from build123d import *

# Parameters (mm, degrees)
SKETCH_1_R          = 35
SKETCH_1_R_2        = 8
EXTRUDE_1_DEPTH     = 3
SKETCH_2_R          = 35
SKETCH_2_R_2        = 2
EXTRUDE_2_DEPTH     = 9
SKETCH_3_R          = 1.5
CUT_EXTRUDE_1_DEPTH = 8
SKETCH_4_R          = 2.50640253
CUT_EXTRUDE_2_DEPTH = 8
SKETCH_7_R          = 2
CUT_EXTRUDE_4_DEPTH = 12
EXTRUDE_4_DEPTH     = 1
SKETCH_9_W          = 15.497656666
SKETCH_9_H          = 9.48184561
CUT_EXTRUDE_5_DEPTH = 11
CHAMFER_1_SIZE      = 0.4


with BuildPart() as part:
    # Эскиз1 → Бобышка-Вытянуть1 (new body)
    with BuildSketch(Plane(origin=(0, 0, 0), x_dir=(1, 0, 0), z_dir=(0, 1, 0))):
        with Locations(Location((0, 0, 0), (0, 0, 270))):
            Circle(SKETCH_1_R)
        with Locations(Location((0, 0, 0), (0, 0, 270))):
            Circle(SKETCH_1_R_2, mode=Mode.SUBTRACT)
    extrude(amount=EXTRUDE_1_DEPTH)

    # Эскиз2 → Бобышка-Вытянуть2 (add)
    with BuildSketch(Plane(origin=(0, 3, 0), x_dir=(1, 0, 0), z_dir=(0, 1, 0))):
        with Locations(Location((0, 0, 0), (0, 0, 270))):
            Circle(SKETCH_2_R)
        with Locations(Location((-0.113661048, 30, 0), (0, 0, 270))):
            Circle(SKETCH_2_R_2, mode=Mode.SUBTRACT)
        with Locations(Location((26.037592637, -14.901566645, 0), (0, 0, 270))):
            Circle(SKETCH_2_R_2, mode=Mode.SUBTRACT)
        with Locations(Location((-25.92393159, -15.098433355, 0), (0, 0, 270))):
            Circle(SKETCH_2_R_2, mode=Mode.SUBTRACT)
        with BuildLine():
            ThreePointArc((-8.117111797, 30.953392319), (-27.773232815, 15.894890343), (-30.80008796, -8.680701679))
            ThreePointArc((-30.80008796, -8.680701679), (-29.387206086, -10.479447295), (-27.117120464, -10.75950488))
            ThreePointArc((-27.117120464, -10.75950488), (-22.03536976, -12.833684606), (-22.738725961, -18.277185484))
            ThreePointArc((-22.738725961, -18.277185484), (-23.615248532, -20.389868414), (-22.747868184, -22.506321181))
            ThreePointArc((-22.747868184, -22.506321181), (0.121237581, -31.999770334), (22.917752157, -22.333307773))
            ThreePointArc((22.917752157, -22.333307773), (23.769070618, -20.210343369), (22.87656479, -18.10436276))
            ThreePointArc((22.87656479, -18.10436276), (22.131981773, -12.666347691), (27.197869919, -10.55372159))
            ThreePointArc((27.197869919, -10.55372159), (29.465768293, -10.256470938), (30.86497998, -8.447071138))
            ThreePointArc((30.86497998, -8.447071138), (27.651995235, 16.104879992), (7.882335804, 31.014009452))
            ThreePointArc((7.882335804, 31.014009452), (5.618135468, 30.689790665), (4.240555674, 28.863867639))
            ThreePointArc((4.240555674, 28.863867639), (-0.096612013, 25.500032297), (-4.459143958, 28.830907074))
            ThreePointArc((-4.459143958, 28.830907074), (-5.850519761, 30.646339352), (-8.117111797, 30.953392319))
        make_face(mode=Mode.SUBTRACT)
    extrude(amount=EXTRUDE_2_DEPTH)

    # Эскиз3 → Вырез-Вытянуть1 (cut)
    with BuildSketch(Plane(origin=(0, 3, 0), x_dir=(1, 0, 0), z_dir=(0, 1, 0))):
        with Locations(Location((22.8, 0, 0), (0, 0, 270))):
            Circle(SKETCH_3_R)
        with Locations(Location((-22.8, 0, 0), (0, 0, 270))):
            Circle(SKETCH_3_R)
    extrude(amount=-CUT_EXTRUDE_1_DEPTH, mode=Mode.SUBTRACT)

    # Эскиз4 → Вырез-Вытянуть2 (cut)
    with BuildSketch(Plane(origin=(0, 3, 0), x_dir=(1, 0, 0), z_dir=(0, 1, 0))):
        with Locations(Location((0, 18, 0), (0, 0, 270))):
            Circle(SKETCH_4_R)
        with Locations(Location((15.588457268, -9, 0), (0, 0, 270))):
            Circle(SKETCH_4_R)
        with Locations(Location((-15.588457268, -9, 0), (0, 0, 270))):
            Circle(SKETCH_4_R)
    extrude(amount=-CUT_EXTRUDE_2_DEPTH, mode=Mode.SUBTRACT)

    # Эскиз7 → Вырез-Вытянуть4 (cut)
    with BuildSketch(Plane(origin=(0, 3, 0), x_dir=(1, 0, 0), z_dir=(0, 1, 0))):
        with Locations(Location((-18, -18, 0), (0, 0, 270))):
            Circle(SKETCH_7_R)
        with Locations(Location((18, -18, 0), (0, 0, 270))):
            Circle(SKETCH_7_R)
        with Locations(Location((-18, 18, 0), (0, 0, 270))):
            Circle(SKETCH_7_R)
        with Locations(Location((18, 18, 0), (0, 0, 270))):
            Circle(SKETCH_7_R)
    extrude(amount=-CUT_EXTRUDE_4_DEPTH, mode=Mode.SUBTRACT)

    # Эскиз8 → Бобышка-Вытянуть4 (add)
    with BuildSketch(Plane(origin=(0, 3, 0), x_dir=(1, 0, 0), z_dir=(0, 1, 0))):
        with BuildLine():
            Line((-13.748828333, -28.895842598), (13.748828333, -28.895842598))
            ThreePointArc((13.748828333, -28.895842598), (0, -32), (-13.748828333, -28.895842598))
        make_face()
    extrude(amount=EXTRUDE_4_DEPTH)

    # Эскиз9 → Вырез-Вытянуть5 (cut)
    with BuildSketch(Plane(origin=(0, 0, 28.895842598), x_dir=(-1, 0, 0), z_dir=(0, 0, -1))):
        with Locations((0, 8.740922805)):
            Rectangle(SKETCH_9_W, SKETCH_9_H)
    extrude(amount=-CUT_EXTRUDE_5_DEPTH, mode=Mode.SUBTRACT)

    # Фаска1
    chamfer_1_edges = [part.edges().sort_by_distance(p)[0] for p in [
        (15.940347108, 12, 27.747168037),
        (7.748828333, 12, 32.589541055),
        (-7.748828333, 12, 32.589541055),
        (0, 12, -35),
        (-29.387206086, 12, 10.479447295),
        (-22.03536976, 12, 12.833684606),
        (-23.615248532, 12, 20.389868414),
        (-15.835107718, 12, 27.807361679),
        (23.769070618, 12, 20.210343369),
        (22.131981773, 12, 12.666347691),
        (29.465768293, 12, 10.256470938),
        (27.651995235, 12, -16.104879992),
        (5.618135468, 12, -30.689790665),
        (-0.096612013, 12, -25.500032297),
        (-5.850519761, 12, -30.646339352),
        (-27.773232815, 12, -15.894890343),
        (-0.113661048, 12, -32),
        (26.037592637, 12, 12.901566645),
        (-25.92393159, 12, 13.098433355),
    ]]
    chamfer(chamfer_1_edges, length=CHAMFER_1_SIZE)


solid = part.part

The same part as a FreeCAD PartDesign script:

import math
import FreeCAD as App
import Part
import Sketcher

V = App.Vector


def edges_at(feature, points):
    """Names of the edges that pass closest to the given points."""
    edges = feature.Shape.Edges
    near = lambda p: min(range(len(edges)), key=lambda i: edges[i].distToShape(Part.Vertex(*p))[0])
    return sorted({f"Edge{near(p) + 1}" for p in points})


def add_polygon(sketch, points):
    """Adds a closed chain of lines whose ends are joined by coincident constraints."""
    first, n = sketch.GeometryCount, len(points)
    for a, b in zip(points, points[1:] + points[:1]):
        sketch.addGeometry(Part.LineSegment(App.Vector(*a, 0), App.Vector(*b, 0)), False)
    for i in range(n):
        sketch.addConstraint(Sketcher.Constraint("Coincident", first + i, 2, first + (i + 1) % n, 1))

doc = App.newDocument("Part")
body = doc.addObject("PartDesign::Body", "Body")

sketch1 = body.newObject("Sketcher::SketchObject", "Sketch")
sketch1.AttachmentSupport = (doc.getObject("XZ_Plane"), [""])
sketch1.MapMode = "FlatFace"
sketch1.addGeometry(Part.Circle(V(0, 0, 0), V(0, 0, 1), 35), False)
sketch1.addGeometry(Part.Circle(V(0, 0, 0), V(0, 0, 1), 8), False)
sketch1.addConstraint(Sketcher.Constraint("Coincident", 0, 3, -1, 1))
sketch1.addConstraint(Sketcher.Constraint("Coincident", 1, 3, -1, 1))
sketch1.addConstraint(Sketcher.Constraint("Diameter", 0, 70.0))
sketch1.addConstraint(Sketcher.Constraint("Diameter", 1, 16.0))
pad1 = body.newObject("PartDesign::Pad", "Pad")
pad1.Profile = sketch1
pad1.Length = 3
pad1.Reversed = True

sketch2 = body.newObject("Sketcher::SketchObject", "Sketch001")
sketch2.AttachmentSupport = (doc.getObject("XZ_Plane"), [""])
sketch2.MapMode = "FlatFace"
sketch2.AttachmentOffset = App.Placement(V(0, 0, -3), App.Rotation())
sketch2.addGeometry(Part.Circle(V(0, 0, 0), V(0, 0, 1), 35), False)
sketch2.addGeometry(Part.Circle(V(-0.1, -30, 0), V(0, 0, 1), 2), False)
sketch2.addGeometry(Part.Circle(V(-25.9, 15.1, 0), V(0, 0, 1), 2), False)
sketch2.addGeometry(Part.ArcOfCircle(Part.Circle(V(0, 0, 0), V(0, 0, 1), 32), math.radians(164), math.radians(255)), False)
sketch2.addGeometry(Part.ArcOfCircle(Part.Circle(V(-7.4, -28.1, 0), V(0, 0, 1), 3), math.radians(-105), math.radians(-15)), False)
sketch2.addGeometry(Part.ArcOfCircle(Part.Circle(V(-0.1, -30, 0), V(0, 0, 1), 4.5), math.radians(15), math.radians(165)), False)
sketch2.addGeometry(Part.ArcOfCircle(Part.Circle(V(7.1, -28.1, 0), V(0, 0, 1), 3), math.radians(-165), math.radians(-76)), False)
sketch2.addGeometry(Part.ArcOfCircle(Part.Circle(V(0, 0, 0), V(0, 0, 1), 32), math.radians(-76), math.radians(15)), False)
sketch2.addGeometry(Part.ArcOfCircle(Part.Circle(V(28, 7.7, 0), V(0, 0, 1), 3), math.radians(15), math.radians(105)), False)
sketch2.addGeometry(Part.ArcOfCircle(Part.Circle(V(26, 14.9, 0), V(0, 0, 1), 4.5), math.radians(135), math.radians(285)), False)
sketch2.addGeometry(Part.ArcOfCircle(Part.Circle(V(20.8, 20.2, 0), V(0, 0, 1), 3), math.radians(-45), math.radians(44)), False)
sketch2.addGeometry(Part.ArcOfCircle(Part.Circle(V(0, 0, 0), V(0, 0, 1), 32), math.radians(44), math.radians(135)), False)
sketch2.addGeometry(Part.ArcOfCircle(Part.Circle(V(-20.6, 20.4, 0), V(0, 0, 1), 3), math.radians(135), math.radians(225)), False)
sketch2.addGeometry(Part.ArcOfCircle(Part.Circle(V(-25.9, 15.1, 0), V(0, 0, 1), 4.5), math.radians(-105), math.radians(45)), False)
sketch2.addGeometry(Part.ArcOfCircle(Part.Circle(V(-27.9, 7.9, 0), V(0, 0, 1), 3), math.radians(75), math.radians(164)), False)
sketch2.addGeometry(Part.Circle(V(26, 14.9, 0), V(0, 0, 1), 2), False)
sketch2.addConstraint(Sketcher.Constraint("Tangent", 3, 2, 4, 1))
sketch2.addConstraint(Sketcher.Constraint("Tangent", 4, 2, 5, 2))
sketch2.addConstraint(Sketcher.Constraint("Tangent", 5, 1, 6, 1))
sketch2.addConstraint(Sketcher.Constraint("Tangent", 6, 2, 7, 1))
sketch2.addConstraint(Sketcher.Constraint("Tangent", 7, 2, 8, 1))
sketch2.addConstraint(Sketcher.Constraint("Tangent", 8, 2, 9, 2))
sketch2.addConstraint(Sketcher.Constraint("Tangent", 9, 1, 10, 1))
sketch2.addConstraint(Sketcher.Constraint("Tangent", 10, 2, 11, 1))
sketch2.addConstraint(Sketcher.Constraint("Tangent", 11, 2, 12, 1))
sketch2.addConstraint(Sketcher.Constraint("Tangent", 12, 2, 13, 2))
sketch2.addConstraint(Sketcher.Constraint("Tangent", 13, 1, 14, 1))
sketch2.addConstraint(Sketcher.Constraint("Tangent", 14, 2, 3, 1))
sketch2.addConstraint(Sketcher.Constraint("Coincident", 0, 3, -1, 1))
sketch2.addConstraint(Sketcher.Constraint("Coincident", 3, 3, -1, 1))
sketch2.addConstraint(Sketcher.Constraint("Coincident", 7, 3, -1, 1))
sketch2.addConstraint(Sketcher.Constraint("Coincident", 11, 3, -1, 1))
sketch2.addConstraint(Sketcher.Constraint("Coincident", 5, 3, 1, 3))
sketch2.addConstraint(Sketcher.Constraint("Coincident", 13, 3, 2, 3))
sketch2.addConstraint(Sketcher.Constraint("Coincident", 15, 3, 9, 3))
sketch2.addConstraint(Sketcher.Constraint("Equal", 1, 2))
sketch2.addConstraint(Sketcher.Constraint("Equal", 4, 6))
sketch2.addConstraint(Sketcher.Constraint("Equal", 3, 7))
sketch2.addConstraint(Sketcher.Constraint("Equal", 6, 8))
sketch2.addConstraint(Sketcher.Constraint("Equal", 5, 9))
sketch2.addConstraint(Sketcher.Constraint("Equal", 8, 10))
sketch2.addConstraint(Sketcher.Constraint("Equal", 7, 11))
sketch2.addConstraint(Sketcher.Constraint("Equal", 10, 12))
sketch2.addConstraint(Sketcher.Constraint("Equal", 9, 13))
sketch2.addConstraint(Sketcher.Constraint("Equal", 12, 14))
sketch2.addConstraint(Sketcher.Constraint("Equal", 2, 15))
sketch2.addConstraint(Sketcher.Constraint("Diameter", 0, 70.0))
sketch2.addConstraint(Sketcher.Constraint("Diameter", 1, 4.0))
sketch2.addConstraint(Sketcher.Constraint("Radius", 3, 32.0))
sketch2.addConstraint(Sketcher.Constraint("Radius", 4, 3.0))
sketch2.addConstraint(Sketcher.Constraint("Radius", 5, 4.5))
sketch2.addConstraint(Sketcher.Constraint("DistanceY", 1, 3, -1, 1, 30.0))
sketch2.addConstraint(Sketcher.Constraint("DistanceY", -1, 1, 14, 2, 8.680702))
sketch2.addConstraint(Sketcher.Constraint("DistanceX", 2, 3, 4, 3, 18.567799))
sketch2.addConstraint(Sketcher.Constraint("DistanceY", 8, 3, 10, 3, 12.584402))
sketch2.addConstraint(Sketcher.Constraint("DistanceY", 14, 3, 12, 2, 10.4103))
sketch2.addConstraint(Sketcher.Constraint("DistanceX", -1, 1, 8, 3, 27.971388))
pad2 = body.newObject("PartDesign::Pad", "Pad001")
pad2.Profile = sketch2
pad2.Length = 9
pad2.Reversed = True

sketch3 = body.newObject("Sketcher::SketchObject", "Sketch002")
sketch3.AttachmentSupport = (doc.getObject("XZ_Plane"), [""])
sketch3.MapMode = "FlatFace"
sketch3.AttachmentOffset = App.Placement(V(0, 0, -3), App.Rotation())
sketch3.addGeometry(Part.Circle(V(22.8, 0, 0), V(0, 0, 1), 1.5), False)
sketch3.addGeometry(Part.Circle(V(-22.8, 0, 0), V(0, 0, 1), 1.5), False)
sketch3.addConstraint(Sketcher.Constraint("Equal", 0, 1))
sketch3.addConstraint(Sketcher.Constraint("Symmetric", 0, 3, 1, 3, -1, 1))
sketch3.addConstraint(Sketcher.Constraint("PointOnObject", 0, 3, -1))
sketch3.addConstraint(Sketcher.Constraint("Diameter", 0, 3.0))
sketch3.addConstraint(Sketcher.Constraint("DistanceX", -1, 1, 0, 3, 22.8))
pocket1 = body.newObject("PartDesign::Pocket", "Pocket")
pocket1.Profile = sketch3
pocket1.Length = 8
pocket1.Reversed = True

sketch4 = body.newObject("Sketcher::SketchObject", "Sketch003")
sketch4.AttachmentSupport = (doc.getObject("XZ_Plane"), [""])
sketch4.MapMode = "FlatFace"
sketch4.AttachmentOffset = App.Placement(V(0, 0, -3), App.Rotation())
sketch4.addGeometry(Part.Circle(V(0, -18, 0), V(0, 0, 1), 2.5), False)
sketch4.addGeometry(Part.Circle(V(15.6, 9, 0), V(0, 0, 1), 2.5), False)
sketch4.addGeometry(Part.Circle(V(-15.6, 9, 0), V(0, 0, 1), 2.5), False)
sketch4.addConstraint(Sketcher.Constraint("Equal", 0, 1))
sketch4.addConstraint(Sketcher.Constraint("Equal", 1, 2))
sketch4.addConstraint(Sketcher.Constraint("Symmetric", 1, 3, 2, 3, -2))
sketch4.addConstraint(Sketcher.Constraint("PointOnObject", 0, 3, -2))
sketch4.addConstraint(Sketcher.Constraint("DistanceY", 0, 3, -1, 1, 18.0))
sketch4.addConstraint(Sketcher.Constraint("DistanceY", -1, 1, 1, 3, 9.0))
sketch4.addConstraint(Sketcher.Constraint("Diameter", 0, 5.012805))
sketch4.addConstraint(Sketcher.Constraint("DistanceX", -1, 1, 1, 3, 15.588457))
pocket2 = body.newObject("PartDesign::Pocket", "Pocket001")
pocket2.Profile = sketch4
pocket2.Length = 8
pocket2.Reversed = True

sketch5 = body.newObject("Sketcher::SketchObject", "Sketch004")
sketch5.AttachmentSupport = (doc.getObject("XZ_Plane"), [""])
sketch5.MapMode = "FlatFace"
sketch5.AttachmentOffset = App.Placement(V(0, 0, -3), App.Rotation())
sketch5.addGeometry(Part.Circle(V(-18, 18, 0), V(0, 0, 1), 2), False)
sketch5.addGeometry(Part.Circle(V(18, 18, 0), V(0, 0, 1), 2), False)
sketch5.addGeometry(Part.Circle(V(-18, -18, 0), V(0, 0, 1), 2), False)
sketch5.addGeometry(Part.Circle(V(18, -18, 0), V(0, 0, 1), 2), False)
sketch5.addConstraint(Sketcher.Constraint("Equal", 0, 1))
sketch5.addConstraint(Sketcher.Constraint("Equal", 1, 2))
sketch5.addConstraint(Sketcher.Constraint("Equal", 2, 3))
sketch5.addConstraint(Sketcher.Constraint("Symmetric", 1, 3, 2, 3, -1, 1))
sketch5.addConstraint(Sketcher.Constraint("Symmetric", 0, 3, 3, 3, -1, 1))
sketch5.addConstraint(Sketcher.Constraint("Symmetric", 0, 3, 1, 3, -2))
sketch5.addConstraint(Sketcher.Constraint("Diameter", 0, 4.0))
sketch5.addConstraint(Sketcher.Constraint("DistanceX", 0, 3, -1, 1, 18.0))
sketch5.addConstraint(Sketcher.Constraint("DistanceY", -1, 1, 0, 3, 18.0))
pocket3 = body.newObject("PartDesign::Pocket", "Pocket002")
pocket3.Profile = sketch5
pocket3.Length = 12
pocket3.Reversed = True

sketch6 = body.newObject("Sketcher::SketchObject", "Sketch005")
sketch6.AttachmentSupport = (doc.getObject("XZ_Plane"), [""])
sketch6.MapMode = "FlatFace"
sketch6.AttachmentOffset = App.Placement(V(0, 0, -3), App.Rotation())
sketch6.addGeometry(Part.LineSegment(V(14, 29, 0), V(-14, 29, 0)), False)
sketch6.addGeometry(Part.ArcOfCircle(Part.Circle(V(0, 0, 0), V(0, 0, 1), 32), math.radians(65), math.radians(115)), False)
sketch6.addConstraint(Sketcher.Constraint("Coincident", 0, 1, 1, 1))
sketch6.addConstraint(Sketcher.Constraint("Coincident", 1, 2, 0, 2))
sketch6.addConstraint(Sketcher.Constraint("Horizontal", 0))
sketch6.addConstraint(Sketcher.Constraint("Coincident", 1, 3, -1, 1))
sketch6.addConstraint(Sketcher.Constraint("Radius", 1, 32.0))
sketch6.addConstraint(Sketcher.Constraint("DistanceX", 0, 2, 0, 1, 27.497657))
pad3 = body.newObject("PartDesign::Pad", "Pad002")
pad3.Profile = sketch6
pad3.Length = 1
pad3.Reversed = True

sketch7 = body.newObject("Sketcher::SketchObject", "Sketch006")
sketch7.AttachmentSupport = (doc.getObject("XY_Plane"), [""])
sketch7.MapMode = "FlatFace"
sketch7.AttachmentOffset = App.Placement(V(0, 0, 28.895843), App.Rotation())
add_polygon(sketch7, [(8, 13), (8, 4), (-8, 4), (-8, 13)])
sketch7.addConstraint(Sketcher.Constraint("Vertical", 0))
sketch7.addConstraint(Sketcher.Constraint("Horizontal", 1))
sketch7.addConstraint(Sketcher.Constraint("Vertical", 2))
sketch7.addConstraint(Sketcher.Constraint("Horizontal", 3))
sketch7.addConstraint(Sketcher.Constraint("DistanceY", -1, 1, 0, 2, 4.0))
sketch7.addConstraint(Sketcher.Constraint("DistanceX", 1, 2, 1, 1, 15.497657))
sketch7.addConstraint(Sketcher.Constraint("DistanceY", 0, 2, 0, 1, 9.481846))
sketch7.addConstraint(Sketcher.Constraint("DistanceX", -1, 1, 0, 2, 7.748828))
pocket4 = body.newObject("PartDesign::Pocket", "Pocket003")
pocket4.Profile = sketch7
pocket4.Length = 11
pocket4.Reversed = True
doc.recompute()

chamfer = body.newObject("PartDesign::Chamfer", "Chamfer")
chamfer.Base = (pocket4, edges_at(pocket4, [
    (15.94, 12, 27.747),
    (7.749, 12, 32.59),
    (-7.749, 12, 32.59),
    (0, 12, -35),
    (-29.387, 12, 10.479),
    (-22.035, 12, 12.834),
    (-23.615, 12, 20.39),
    (-15.835, 12, 27.807),
    (23.769, 12, 20.21),
    (22.132, 12, 12.666),
    (29.466, 12, 10.256),
    (27.652, 12, -16.105),
    (5.618, 12, -30.69),
    (-0.097, 12, -25.5),
    (-5.851, 12, -30.646),
    (-27.773, 12, -15.895),
    (-0.114, 12, -32),
    (26.038, 12, 12.902),
    (-25.924, 12, 13.098),
]))
chamfer.Size = 0.4

doc.recompute()
